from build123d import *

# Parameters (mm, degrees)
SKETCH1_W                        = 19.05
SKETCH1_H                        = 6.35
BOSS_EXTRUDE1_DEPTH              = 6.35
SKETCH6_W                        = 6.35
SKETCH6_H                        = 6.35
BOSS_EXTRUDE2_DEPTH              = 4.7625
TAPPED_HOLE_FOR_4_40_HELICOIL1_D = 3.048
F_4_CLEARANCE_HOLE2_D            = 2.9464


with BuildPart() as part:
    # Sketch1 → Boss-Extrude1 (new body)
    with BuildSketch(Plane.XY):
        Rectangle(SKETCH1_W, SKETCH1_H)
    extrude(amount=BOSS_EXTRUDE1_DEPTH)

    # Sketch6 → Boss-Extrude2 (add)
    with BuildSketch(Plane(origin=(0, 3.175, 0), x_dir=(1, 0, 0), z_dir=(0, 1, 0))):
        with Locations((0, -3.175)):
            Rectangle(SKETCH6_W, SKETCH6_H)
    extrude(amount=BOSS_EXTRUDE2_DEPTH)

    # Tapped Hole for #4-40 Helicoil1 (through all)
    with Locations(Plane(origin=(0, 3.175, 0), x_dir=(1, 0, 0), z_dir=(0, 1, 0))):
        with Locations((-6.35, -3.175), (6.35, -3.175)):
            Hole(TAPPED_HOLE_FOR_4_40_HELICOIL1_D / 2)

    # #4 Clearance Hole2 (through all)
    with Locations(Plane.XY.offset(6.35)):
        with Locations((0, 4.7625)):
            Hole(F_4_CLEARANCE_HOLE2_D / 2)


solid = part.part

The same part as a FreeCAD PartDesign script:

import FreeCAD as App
import Part
import Sketcher

V = App.Vector
Q = App.Units.Quantity

doc = App.newDocument("Part")
body = doc.addObject("PartDesign::Body", "Body")

# Sketch on XY plane
sketch1 = doc.addObject("Sketcher::SketchObject", "Sketch")
body.addObject(sketch1)
sketch1.AttachmentSupport = (doc.XY_Plane, [""])
sketch1.MapMode = "FlatFace"
sketch1.addGeometry([
    Part.LineSegment(V(-10, 3, 0), V(-10, -3, 0)),
    Part.LineSegment(V(-10, -3, 0), V(10, -3, 0)),
    Part.LineSegment(V(10, -3, 0), V(10, 3, 0)),
    Part.LineSegment(V(10, 3, 0), V(-10, 3, 0)),
], False)
sketch1.addConstraint([
    Sketcher.Constraint("Coincident", 0, 2, 1, 1),
    Sketcher.Constraint("Coincident", 1, 2, 2, 1),
    Sketcher.Constraint("Coincident", 2, 2, 3, 1),
    Sketcher.Constraint("Coincident", 3, 2, 0, 1),
    Sketcher.Constraint("Vertical", 0),
    Sketcher.Constraint("Horizontal", 1),
    Sketcher.Constraint("Vertical", 2),
    Sketcher.Constraint("Horizontal", 3),
    Sketcher.Constraint("Symmetric", 0, 2, 2, 2, -1, 1),
    Sketcher.Constraint("DistanceX", 1, 1, 1, 2, Q("0.75 in")),
    Sketcher.Constraint("DistanceY", 0, 2, 0, 1, Q("0.25 in")),
])
pad1 = doc.addObject("PartDesign::Pad", "Pad")
body.addObject(pad1)
pad1.Profile = sketch1
pad1.Length = Q("0.25 in")

# Sketch on XZ plane
sketch2 = doc.addObject("Sketcher::SketchObject", "Sketch001")
body.addObject(sketch2)
sketch2.AttachmentSupport = (doc.XZ_Plane, [""])
sketch2.MapMode = "FlatFace"
sketch2.AttachmentOffset = App.Placement(V(0, 0, -0.125 * 25.4), App.Rotation())
sketch2.addGeometry([
    Part.LineSegment(V(-3, 0, 0), V(-3, 6, 0)),
    Part.LineSegment(V(-3, 6, 0), V(3, 6, 0)),
    Part.LineSegment(V(3, 6, 0), V(3, 0, 0)),
    Part.LineSegment(V(3, 0, 0), V(-3, 0, 0)),
], False)
sketch2.addConstraint([
    Sketcher.Constraint("Coincident", 0, 2, 1, 1),
    Sketcher.Constraint("Coincident", 1, 2, 2, 1),
    Sketcher.Constraint("Coincident", 2, 2, 3, 1),
    Sketcher.Constraint("Coincident", 3, 2, 0, 1),
    Sketcher.Constraint("Vertical", 0),
    Sketcher.Constraint("Horizontal", 1),
    Sketcher.Constraint("Vertical", 2),
    Sketcher.Constraint("Horizontal", 3),
    Sketcher.Constraint("Symmetric", 2, 2, 3, 2, -1, 1),
    Sketcher.Constraint("Equal", 3, 0),
    Sketcher.Constraint("DistanceX", 1, 1, 1, 2, Q("0.25 in")),
])
pad2 = doc.addObject("PartDesign::Pad", "Pad001")
body.addObject(pad2)
pad2.Profile = sketch2
pad2.Length = Q("0.1875 in")
pad2.Reversed = True

# Sketch on XZ plane
sketch3 = doc.addObject("Sketcher::SketchObject", "Sketch002")
body.addObject(sketch3)
sketch3.AttachmentSupport = (doc.XZ_Plane, [""])
sketch3.MapMode = "FlatFace"
sketch3.AttachmentOffset = App.Placement(V(0, 0, -0.125 * 25.4), App.Rotation())
sketch3.addGeometry([
    Part.Circle(V(-6.3, 3.2, 0), V(0, 0, 1), 1.5),
    Part.Circle(V(6.3, 3.2, 0), V(0, 0, 1), 1.5),
], False)
sketch3.addConstraint([
    Sketcher.Constraint("Equal", 0, 1),
    Sketcher.Constraint("Symmetric", 0, 3, 1, 3, -2),
    Sketcher.Constraint("Diameter", 0, Q("0.12 in")),
    Sketcher.Constraint("DistanceX", 0, 3, 1, 3, Q("0.5 in")),
    Sketcher.Constraint("DistanceY", -1, 1, 0, 3, Q("0.125 in")),
])
doc.recompute()
hole = doc.addObject("PartDesign::Hole", "Hole")
body.addObject(hole)
hole.Profile = sketch3
hole.ThreadType = "None"
hole.Diameter = Q("0.12 in")
hole.DepthType = "ThroughAll"
hole.Reversed = True

# Sketch on XY plane
sketch4 = doc.addObject("Sketcher::SketchObject", "Sketch003")
body.addObject(sketch4)
sketch4.AttachmentSupport = (doc.XY_Plane, [""])
sketch4.MapMode = "FlatFace"
sketch4.AttachmentOffset = App.Placement(V(0, 0, 0.25 * 25.4), App.Rotation())
sketch4.addGeometry(Part.Circle(V(0, 4.8, 0), V(0, 0, 1), 1.5), False)
sketch4.addConstraint([
    Sketcher.Constraint("PointOnObject", 0, 3, -2),
    Sketcher.Constraint("Diameter", 0, Q("0.116 in")),
    Sketcher.Constraint("DistanceY", -1, 1, 0, 3, Q("0.1875 in")),
])
doc.recompute()
hole2 = doc.addObject("PartDesign::Hole", "Hole001")
body.addObject(hole2)
hole2.Profile = sketch4
hole2.ThreadType = "None"
hole2.Diameter = Q("0.116 in")
hole2.DepthType = "ThroughAll"

doc.recompute()
